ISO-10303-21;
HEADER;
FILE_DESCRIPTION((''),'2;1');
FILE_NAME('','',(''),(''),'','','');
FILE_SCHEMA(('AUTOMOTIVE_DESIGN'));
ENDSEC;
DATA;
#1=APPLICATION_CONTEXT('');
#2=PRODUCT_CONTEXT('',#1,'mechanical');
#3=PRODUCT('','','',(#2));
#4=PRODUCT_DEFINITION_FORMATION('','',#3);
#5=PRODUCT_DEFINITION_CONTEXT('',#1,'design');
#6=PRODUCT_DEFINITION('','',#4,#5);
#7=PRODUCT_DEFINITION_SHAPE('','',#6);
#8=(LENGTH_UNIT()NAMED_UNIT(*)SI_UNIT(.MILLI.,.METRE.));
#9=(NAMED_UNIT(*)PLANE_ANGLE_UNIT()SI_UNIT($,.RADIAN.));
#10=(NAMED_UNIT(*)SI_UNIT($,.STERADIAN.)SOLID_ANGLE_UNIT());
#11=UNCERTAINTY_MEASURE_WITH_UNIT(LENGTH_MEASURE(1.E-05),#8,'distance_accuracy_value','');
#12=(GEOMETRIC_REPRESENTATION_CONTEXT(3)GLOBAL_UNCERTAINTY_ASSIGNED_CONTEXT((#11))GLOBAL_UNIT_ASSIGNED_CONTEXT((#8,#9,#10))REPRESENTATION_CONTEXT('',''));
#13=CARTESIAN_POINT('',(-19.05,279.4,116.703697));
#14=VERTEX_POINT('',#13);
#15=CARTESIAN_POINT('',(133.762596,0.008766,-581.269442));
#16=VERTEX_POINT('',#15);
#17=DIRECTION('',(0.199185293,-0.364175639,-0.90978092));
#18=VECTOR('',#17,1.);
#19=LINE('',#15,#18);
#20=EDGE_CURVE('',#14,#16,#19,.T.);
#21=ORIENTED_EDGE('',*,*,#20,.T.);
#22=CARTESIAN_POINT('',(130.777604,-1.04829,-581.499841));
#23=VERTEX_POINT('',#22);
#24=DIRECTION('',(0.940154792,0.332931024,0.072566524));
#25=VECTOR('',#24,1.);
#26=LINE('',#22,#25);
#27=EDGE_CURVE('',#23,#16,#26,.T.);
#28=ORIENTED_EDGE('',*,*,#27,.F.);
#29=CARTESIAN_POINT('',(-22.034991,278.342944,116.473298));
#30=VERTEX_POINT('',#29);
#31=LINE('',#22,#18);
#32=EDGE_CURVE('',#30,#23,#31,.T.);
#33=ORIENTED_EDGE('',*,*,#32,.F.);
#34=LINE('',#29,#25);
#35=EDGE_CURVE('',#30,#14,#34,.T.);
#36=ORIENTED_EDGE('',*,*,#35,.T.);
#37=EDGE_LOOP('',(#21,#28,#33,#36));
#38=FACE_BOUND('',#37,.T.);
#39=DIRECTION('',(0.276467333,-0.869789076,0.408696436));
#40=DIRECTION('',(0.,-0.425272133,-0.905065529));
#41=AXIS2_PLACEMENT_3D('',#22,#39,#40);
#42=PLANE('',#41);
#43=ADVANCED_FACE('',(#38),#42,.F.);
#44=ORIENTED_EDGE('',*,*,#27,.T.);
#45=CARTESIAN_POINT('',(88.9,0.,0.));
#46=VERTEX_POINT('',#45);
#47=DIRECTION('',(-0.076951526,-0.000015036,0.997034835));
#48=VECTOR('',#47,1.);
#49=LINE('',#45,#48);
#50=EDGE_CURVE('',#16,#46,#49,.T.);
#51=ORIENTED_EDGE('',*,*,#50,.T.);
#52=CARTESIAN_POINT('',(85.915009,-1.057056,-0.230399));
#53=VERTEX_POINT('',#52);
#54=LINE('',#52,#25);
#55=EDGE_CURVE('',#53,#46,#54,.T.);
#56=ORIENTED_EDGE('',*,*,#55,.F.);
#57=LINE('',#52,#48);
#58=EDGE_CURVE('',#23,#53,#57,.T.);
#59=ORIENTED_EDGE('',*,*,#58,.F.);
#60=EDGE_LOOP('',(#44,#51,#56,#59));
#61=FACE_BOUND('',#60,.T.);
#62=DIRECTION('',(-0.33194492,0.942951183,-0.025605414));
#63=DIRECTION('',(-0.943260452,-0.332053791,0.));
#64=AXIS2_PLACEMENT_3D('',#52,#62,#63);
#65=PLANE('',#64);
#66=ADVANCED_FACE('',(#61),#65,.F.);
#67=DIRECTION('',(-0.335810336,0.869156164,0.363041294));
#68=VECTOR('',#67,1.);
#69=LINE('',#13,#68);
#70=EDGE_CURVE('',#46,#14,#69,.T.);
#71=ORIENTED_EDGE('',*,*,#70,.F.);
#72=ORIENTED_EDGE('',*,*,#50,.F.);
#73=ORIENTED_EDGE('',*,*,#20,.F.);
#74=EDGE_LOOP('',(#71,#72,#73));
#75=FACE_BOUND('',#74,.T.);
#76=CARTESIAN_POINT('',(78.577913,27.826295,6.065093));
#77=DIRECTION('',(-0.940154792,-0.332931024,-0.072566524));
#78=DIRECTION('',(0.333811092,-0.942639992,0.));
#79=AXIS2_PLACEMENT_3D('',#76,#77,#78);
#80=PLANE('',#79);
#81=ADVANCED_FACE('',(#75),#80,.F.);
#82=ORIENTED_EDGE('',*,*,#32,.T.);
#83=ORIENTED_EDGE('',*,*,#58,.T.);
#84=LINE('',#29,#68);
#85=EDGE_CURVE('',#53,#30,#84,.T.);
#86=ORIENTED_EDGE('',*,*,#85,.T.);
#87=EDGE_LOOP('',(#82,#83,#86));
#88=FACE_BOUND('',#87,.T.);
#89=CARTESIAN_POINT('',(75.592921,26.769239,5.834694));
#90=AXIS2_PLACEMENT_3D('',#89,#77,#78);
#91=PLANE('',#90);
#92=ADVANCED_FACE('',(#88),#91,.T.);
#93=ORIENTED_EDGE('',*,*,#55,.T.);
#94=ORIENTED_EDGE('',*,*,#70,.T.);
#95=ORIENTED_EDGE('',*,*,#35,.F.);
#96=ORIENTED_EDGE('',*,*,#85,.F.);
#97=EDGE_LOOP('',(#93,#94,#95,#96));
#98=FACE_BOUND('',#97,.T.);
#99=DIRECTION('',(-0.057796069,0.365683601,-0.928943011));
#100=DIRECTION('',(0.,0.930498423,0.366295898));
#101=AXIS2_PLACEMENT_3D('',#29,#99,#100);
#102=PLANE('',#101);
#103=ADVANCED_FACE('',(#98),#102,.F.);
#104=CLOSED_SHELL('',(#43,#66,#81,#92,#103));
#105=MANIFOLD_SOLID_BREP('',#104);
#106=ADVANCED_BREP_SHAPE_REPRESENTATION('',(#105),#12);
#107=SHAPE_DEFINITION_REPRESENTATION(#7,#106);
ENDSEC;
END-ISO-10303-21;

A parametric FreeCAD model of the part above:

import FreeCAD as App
import Part
import Sketcher
Q = App.Units.Quantity

doc = App.newDocument("Part")
body = doc.addObject("PartDesign::Body", "Body")

# Sketch on an angled plane
sketch1 = body.newObject("Sketcher::SketchObject", "Sketch")
sketch1.Placement = App.Placement(App.Vector(78.577913, 27.826295, 6.065093), App.Rotation(App.Vector(-0.069402696, -0.02140265, 0.997359109), App.Vector(-0.333604905, 0.942708258, -0.002984507), App.Vector(-0.940154792, -0.332931024, -0.072566524), "ZXY"))
sketch1.addGeometry(Part.LineSegment(App.Vector(112, 269, 0), App.Vector(-589, -43, 0)), False)
sketch1.addGeometry(Part.LineSegment(App.Vector(-589, -43, 0), App.Vector(-6, -30, 0)), False)
sketch1.addGeometry(Part.LineSegment(App.Vector(-6, -30, 0), App.Vector(112, 269, 0)), False)
sketch1.addConstraint(Sketcher.Constraint("Coincident", 0, 2, 1, 1))
sketch1.addConstraint(Sketcher.Constraint("Coincident", 1, 2, 2, 1))
sketch1.addConstraint(Sketcher.Constraint("Coincident", 2, 2, 0, 1))
sketch1.addConstraint(Sketcher.Constraint("DistanceX", 1, 2, -1, 1, 6.1699))
sketch1.addConstraint(Sketcher.Constraint("Distance", 2, 321.461219))
sketch1.addConstraint(Sketcher.Constraint("DistanceY", 0, 2, -1, 1, 42.880792))
sketch1.addConstraint(Sketcher.Constraint("DistanceX", 0, 2, 2, 2, 700.755761))
sketch1.addConstraint(Sketcher.Constraint("DistanceY", 0, 2, 2, 2, 312.280349))
sketch1.addConstraint(Sketcher.Constraint("Distance", 1, 582.998127))
pad1 = body.newObject("PartDesign::Pad", "Pad")
pad1.Profile = sketch1
pad1.Length = Q("0.125 in")

doc.recompute()
